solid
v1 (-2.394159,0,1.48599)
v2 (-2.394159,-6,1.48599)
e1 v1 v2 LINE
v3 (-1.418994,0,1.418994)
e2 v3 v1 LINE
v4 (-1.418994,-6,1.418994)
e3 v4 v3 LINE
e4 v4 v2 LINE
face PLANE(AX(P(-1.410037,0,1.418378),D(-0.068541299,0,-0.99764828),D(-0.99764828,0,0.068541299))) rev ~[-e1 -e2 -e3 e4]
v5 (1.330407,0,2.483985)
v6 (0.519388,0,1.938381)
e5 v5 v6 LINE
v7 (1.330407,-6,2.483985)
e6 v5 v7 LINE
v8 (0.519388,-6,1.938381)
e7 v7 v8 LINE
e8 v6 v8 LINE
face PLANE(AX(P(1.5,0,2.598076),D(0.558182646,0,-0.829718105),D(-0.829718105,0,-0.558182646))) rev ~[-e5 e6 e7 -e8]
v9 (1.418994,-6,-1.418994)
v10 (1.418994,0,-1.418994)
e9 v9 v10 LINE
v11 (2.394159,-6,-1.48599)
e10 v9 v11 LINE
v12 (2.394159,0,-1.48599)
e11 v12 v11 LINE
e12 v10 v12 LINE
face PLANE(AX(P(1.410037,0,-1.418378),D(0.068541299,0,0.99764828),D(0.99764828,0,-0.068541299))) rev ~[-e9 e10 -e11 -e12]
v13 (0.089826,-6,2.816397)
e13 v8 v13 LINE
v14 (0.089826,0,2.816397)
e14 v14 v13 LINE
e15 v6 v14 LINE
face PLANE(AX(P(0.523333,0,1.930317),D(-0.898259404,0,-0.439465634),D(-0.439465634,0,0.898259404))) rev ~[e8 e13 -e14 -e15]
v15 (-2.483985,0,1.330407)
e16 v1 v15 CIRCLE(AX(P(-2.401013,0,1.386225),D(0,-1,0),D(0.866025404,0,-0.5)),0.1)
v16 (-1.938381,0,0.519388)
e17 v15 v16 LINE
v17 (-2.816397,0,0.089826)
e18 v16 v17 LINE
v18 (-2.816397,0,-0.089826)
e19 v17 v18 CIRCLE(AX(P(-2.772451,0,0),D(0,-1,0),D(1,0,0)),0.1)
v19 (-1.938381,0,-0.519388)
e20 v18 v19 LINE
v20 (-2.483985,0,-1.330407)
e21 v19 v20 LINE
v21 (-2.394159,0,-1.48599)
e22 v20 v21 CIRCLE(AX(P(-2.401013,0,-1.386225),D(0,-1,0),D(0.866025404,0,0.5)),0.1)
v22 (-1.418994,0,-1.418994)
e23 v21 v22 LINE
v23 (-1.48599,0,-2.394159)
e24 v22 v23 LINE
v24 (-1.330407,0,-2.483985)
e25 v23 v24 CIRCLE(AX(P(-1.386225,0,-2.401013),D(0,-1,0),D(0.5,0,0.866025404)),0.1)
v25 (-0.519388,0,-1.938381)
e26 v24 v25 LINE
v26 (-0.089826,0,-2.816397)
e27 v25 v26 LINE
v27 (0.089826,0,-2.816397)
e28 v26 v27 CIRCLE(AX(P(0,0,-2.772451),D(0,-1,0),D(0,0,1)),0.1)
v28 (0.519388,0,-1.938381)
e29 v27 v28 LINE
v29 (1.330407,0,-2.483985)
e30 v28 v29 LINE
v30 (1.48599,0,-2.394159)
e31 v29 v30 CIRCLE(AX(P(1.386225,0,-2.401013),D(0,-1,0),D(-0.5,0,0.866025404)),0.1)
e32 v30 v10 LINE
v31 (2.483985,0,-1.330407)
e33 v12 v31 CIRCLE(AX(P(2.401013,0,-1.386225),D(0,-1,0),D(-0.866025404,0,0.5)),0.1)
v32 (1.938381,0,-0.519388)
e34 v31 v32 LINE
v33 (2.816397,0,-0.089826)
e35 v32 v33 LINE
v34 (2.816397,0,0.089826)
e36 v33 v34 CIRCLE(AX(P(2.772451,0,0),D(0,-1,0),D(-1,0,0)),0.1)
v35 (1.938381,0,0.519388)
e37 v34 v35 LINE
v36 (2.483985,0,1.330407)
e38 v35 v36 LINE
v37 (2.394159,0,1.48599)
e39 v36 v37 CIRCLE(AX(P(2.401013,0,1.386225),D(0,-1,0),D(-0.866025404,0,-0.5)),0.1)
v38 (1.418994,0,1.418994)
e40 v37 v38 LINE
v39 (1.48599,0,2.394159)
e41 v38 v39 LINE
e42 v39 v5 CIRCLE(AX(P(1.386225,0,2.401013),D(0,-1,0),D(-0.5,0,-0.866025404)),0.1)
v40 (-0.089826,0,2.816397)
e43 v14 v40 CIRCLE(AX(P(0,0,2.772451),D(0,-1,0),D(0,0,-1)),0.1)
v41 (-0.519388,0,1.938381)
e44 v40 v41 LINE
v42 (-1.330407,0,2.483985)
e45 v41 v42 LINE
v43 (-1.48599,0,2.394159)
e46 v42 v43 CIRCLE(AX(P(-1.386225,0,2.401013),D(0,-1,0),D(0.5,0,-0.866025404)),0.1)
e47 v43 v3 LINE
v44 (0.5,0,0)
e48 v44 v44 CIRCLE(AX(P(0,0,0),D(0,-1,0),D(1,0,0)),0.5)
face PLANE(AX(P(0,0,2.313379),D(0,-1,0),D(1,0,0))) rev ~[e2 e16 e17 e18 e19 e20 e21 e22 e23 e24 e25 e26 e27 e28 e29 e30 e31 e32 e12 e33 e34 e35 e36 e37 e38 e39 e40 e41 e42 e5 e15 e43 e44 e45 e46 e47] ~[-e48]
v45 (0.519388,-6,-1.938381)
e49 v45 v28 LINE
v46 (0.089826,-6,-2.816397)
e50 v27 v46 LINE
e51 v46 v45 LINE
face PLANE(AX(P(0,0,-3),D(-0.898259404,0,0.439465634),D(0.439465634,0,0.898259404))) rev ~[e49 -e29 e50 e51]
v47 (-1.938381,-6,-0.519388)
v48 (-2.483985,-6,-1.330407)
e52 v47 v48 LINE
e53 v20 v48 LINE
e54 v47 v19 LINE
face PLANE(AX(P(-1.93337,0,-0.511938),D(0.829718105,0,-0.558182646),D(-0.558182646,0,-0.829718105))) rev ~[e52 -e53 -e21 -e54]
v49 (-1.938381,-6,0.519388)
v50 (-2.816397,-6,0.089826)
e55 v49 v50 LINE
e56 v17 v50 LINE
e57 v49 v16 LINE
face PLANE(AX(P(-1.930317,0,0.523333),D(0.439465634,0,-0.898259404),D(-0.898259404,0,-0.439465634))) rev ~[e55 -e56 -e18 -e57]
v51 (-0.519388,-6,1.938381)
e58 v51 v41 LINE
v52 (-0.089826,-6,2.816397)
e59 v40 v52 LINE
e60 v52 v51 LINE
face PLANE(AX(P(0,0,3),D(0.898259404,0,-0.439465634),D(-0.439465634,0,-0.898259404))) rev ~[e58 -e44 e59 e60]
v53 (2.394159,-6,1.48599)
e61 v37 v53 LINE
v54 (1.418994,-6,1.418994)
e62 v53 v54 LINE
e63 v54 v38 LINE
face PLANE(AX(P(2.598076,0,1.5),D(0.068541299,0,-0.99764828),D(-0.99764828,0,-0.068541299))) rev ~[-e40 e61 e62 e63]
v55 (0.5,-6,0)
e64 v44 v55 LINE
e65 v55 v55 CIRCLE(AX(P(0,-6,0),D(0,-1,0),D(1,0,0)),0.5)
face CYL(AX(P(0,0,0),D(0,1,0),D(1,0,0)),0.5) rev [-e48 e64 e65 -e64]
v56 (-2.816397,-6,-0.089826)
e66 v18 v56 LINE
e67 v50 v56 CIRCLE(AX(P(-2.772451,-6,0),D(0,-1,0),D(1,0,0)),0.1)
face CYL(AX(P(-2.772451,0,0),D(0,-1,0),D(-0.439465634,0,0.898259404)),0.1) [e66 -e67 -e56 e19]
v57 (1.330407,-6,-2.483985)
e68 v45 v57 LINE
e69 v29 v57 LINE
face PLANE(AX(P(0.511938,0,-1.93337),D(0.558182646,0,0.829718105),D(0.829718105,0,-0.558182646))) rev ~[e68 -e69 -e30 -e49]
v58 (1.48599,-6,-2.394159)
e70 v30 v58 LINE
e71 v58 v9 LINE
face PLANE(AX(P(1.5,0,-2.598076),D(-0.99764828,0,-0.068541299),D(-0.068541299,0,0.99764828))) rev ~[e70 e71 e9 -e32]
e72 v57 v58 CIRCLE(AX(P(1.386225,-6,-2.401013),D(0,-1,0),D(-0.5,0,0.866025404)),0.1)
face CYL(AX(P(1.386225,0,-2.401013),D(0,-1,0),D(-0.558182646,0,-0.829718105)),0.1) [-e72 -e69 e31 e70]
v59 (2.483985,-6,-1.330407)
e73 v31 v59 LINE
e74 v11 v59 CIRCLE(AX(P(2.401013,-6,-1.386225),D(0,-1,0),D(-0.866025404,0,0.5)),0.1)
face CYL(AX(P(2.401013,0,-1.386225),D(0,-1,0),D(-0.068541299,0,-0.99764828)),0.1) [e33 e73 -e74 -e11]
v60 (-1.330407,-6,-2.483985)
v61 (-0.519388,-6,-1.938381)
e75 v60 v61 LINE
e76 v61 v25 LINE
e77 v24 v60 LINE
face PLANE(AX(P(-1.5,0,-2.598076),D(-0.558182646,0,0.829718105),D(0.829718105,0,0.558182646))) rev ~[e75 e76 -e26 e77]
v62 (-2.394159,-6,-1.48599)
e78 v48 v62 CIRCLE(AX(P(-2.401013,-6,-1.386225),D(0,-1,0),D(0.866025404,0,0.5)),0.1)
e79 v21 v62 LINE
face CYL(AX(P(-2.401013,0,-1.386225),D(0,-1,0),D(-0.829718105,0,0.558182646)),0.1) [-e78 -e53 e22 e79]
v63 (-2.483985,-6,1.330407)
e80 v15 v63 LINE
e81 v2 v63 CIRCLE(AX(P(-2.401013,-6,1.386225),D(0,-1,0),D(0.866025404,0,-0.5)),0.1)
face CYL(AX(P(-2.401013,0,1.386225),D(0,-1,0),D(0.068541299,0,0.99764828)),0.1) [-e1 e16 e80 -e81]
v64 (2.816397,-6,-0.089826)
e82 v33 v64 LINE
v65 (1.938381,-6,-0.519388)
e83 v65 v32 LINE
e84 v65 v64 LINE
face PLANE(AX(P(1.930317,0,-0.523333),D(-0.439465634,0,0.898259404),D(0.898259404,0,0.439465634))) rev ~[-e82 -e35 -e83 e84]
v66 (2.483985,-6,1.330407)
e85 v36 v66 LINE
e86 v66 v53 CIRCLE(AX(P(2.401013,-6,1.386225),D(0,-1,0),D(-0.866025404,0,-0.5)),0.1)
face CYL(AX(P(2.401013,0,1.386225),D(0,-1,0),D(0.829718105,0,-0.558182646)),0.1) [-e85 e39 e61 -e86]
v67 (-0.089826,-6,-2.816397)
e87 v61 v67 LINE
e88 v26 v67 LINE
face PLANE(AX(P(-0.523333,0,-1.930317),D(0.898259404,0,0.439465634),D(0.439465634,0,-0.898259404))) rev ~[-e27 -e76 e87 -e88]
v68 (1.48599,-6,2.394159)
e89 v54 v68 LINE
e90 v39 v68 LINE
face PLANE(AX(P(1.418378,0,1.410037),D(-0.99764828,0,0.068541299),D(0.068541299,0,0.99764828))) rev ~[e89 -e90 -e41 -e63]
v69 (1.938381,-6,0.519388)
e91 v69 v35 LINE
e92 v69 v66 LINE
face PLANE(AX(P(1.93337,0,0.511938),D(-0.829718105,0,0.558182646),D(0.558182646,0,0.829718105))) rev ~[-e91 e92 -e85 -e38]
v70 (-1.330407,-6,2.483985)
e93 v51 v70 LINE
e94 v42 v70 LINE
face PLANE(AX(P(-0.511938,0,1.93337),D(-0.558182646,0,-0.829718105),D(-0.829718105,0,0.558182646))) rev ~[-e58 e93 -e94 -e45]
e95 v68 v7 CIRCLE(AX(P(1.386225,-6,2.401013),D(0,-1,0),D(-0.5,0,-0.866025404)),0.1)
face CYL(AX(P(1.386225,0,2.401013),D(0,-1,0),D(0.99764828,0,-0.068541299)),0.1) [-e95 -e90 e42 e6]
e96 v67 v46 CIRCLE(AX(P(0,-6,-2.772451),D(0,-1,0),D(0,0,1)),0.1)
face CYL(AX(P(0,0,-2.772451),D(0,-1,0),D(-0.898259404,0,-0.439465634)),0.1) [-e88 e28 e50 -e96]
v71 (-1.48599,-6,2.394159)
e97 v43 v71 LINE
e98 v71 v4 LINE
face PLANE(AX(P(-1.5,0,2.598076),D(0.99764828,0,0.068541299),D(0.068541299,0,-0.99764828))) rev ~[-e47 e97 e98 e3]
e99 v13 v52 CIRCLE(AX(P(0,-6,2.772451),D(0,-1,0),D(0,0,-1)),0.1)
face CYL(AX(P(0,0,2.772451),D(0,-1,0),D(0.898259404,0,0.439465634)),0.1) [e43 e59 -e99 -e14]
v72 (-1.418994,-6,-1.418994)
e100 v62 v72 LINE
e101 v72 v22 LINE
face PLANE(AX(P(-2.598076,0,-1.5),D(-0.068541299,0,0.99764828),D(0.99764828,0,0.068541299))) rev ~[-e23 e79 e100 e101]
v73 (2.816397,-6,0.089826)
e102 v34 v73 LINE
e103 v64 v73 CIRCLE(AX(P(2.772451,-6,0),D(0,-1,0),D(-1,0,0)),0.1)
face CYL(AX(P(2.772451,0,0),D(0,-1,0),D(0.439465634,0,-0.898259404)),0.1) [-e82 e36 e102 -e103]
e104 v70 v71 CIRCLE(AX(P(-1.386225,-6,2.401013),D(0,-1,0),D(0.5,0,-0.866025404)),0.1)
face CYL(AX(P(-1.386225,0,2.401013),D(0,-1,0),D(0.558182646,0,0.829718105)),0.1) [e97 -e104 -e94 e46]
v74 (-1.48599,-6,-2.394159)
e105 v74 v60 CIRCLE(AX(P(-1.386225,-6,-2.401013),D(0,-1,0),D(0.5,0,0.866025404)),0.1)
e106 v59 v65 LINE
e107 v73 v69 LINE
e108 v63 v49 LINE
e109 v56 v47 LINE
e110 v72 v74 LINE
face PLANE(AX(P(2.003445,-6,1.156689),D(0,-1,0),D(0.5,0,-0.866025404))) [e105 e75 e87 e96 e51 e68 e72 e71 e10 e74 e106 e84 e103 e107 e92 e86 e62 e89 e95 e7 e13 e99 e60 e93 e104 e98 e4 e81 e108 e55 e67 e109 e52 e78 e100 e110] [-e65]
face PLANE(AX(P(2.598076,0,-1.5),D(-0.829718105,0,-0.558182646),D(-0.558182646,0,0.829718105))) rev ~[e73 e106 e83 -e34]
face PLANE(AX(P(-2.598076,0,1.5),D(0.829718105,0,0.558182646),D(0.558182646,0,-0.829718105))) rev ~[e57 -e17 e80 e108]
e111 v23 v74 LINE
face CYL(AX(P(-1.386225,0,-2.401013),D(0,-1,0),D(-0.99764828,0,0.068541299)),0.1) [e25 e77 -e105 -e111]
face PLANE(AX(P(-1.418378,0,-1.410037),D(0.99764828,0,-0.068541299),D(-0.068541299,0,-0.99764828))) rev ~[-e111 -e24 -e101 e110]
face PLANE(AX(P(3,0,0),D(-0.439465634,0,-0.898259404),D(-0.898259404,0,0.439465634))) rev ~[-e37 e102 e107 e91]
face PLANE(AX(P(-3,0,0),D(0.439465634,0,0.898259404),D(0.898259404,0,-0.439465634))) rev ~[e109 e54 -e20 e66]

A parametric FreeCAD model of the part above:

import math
import FreeCAD as App
import Part
import Sketcher
from FreeCAD import Vector


def edges_at(feature, points):
    """Names of the edges that pass closest to the given points."""
    edges = feature.Shape.Edges
    near = lambda p: min(range(len(edges)), key=lambda i: edges[i].distToShape(Part.Vertex(*p))[0])
    return sorted({f"Edge{near(p) + 1}" for p in points})

doc = App.newDocument("Part")
body = doc.addObject("PartDesign::Body", "Body")

# Sketch on XZ plane
sketch1 = body.newObject("Sketcher::SketchObject", "Sketch")
sketch1.AttachmentSupport = (doc.getObject("XZ_Plane"), [""])
sketch1.MapMode = "FlatFace"
sketch1.addGeometry([
    Part.ArcOfCircle(Part.Circle(Vector(0, 0, 0), Vector(0, 0, 1), 2), math.radians(105), math.radians(360)),
    Part.ArcOfCircle(Part.Circle(Vector(0, 0, 0), Vector(0, 0, 1), 2), math.radians(0), math.radians(75)),
    Part.ArcOfCircle(Part.Circle(Vector(0, 0, 0), Vector(0, 0, 1), 2), math.radians(75), math.radians(105)),
    Part.Circle(Vector(0, 0, 0), Vector(0, 0, 1), 0.5),
], False)
sketch1.addConstraint([
    Sketcher.Constraint("Tangent", 0, 2, 1, 1),
    Sketcher.Constraint("Tangent", 1, 2, 2, 1),
    Sketcher.Constraint("Tangent", 2, 2, 0, 1),
    Sketcher.Constraint("Coincident", 0, 3, -1, 1),
    Sketcher.Constraint("Coincident", 3, 3, -1, 1),
    Sketcher.Constraint("PointOnObject", 0, 2, -1),
    Sketcher.Constraint("Horizontal", 1, 2, 2, 2),
    Sketcher.Constraint("Diameter", 3, 1.0),
    Sketcher.Constraint("Radius", 0, 2.0),
    Sketcher.Constraint("DistanceX", -1, 1, 1, 2, 0.523333),
])
pad1 = body.newObject("PartDesign::Pad", "Pad")
pad1.Profile = sketch1
pad1.Length = 6
body2 = doc.addObject("PartDesign::Body", "Body001")

# Sketch on XZ plane
sketch2 = body2.newObject("Sketcher::SketchObject", "Sketch001")
sketch2.AttachmentSupport = (doc.getObject("XZ_Plane001"), [""])
sketch2.MapMode = "FlatFace"
sketch2.addGeometry([
    Part.ArcOfCircle(Part.Circle(Vector(0, 0, 0), Vector(0, 0, 1), 2), math.radians(75), math.radians(105)),
    Part.LineSegment(Vector(0.5, 1.9, 0), Vector(0, 3, 0)),
    Part.LineSegment(Vector(0, 3, 0), Vector(-0.5, 1.9, 0)),
], False)
sketch2.addConstraint([
    Sketcher.Constraint("Coincident", 0, 1, 1, 1),
    Sketcher.Constraint("Coincident", 1, 2, 2, 1),
    Sketcher.Constraint("Coincident", 2, 2, 0, 2),
    Sketcher.Constraint("Coincident", 0, 3, -1, 1),
    Sketcher.Constraint("PointOnObject", 1, 2, -2),
    Sketcher.Constraint("Horizontal", 0, 1, 2, 2),
    Sketcher.Constraint("Radius", 0, 2.0),
    Sketcher.Constraint("DistanceY", -1, 1, 1, 2, 3.0),
    Sketcher.Constraint("Distance", 1, 1.19084),
])
pad2 = body2.newObject("PartDesign::Pad", "Pad001")
pad2.Profile = sketch2
pad2.Length = 6
doc.recompute()

fillet = body2.newObject("PartDesign::Fillet", "Fillet")
fillet.Base = (pad2, edges_at(pad2, [(0, -3, 3)]))
fillet.Radius = 0.1
doc.recompute()

body3 = doc.addObject("PartDesign::Body", "Body002")
body3.BaseFeature = body2
boolean = body.newObject("PartDesign::Boolean", "Boolean")
boolean.Type = "Fuse"
boolean.addObjects([body3])
doc.recompute()

body4 = doc.addObject("PartDesign::Body", "Body003")
body4.BaseFeature = body2
body4.Placement = App.Placement(Vector(0, 0, 0), App.Rotation(Vector(0, -1, 0), 30))
boolean2 = body.newObject("PartDesign::Boolean", "Boolean001")
boolean2.Type = "Fuse"
boolean2.addObjects([body4])
doc.recompute()

body5 = doc.addObject("PartDesign::Body", "Body004")
body5.BaseFeature = body2
body5.Placement = App.Placement(Vector(0, 0, 0), App.Rotation(Vector(0, -1, 0), 60))
boolean3 = body.newObject("PartDesign::Boolean", "Boolean002")
boolean3.Type = "Fuse"
boolean3.addObjects([body5])
doc.recompute()

body6 = doc.addObject("PartDesign::Body", "Body005")
body6.BaseFeature = body2
body6.Placement = App.Placement(Vector(0, 0, 0), App.Rotation(Vector(0, -1, 0), 90))
boolean4 = body.newObject("PartDesign::Boolean", "Boolean003")
boolean4.Type = "Fuse"
boolean4.addObjects([body6])
doc.recompute()

body7 = doc.addObject("PartDesign::Body", "Body006")
body7.BaseFeature = body2
body7.Placement = App.Placement(Vector(0, 0, 0), App.Rotation(Vector(0, -1, 0), 120))
boolean5 = body.newObject("PartDesign::Boolean", "Boolean004")
boolean5.Type = "Fuse"
boolean5.addObjects([body7])
doc.recompute()

body8 = doc.addObject("PartDesign::Body", "Body007")
body8.BaseFeature = body2
body8.Placement = App.Placement(Vector(0, 0, 0), App.Rotation(Vector(0, -1, 0), 150))
boolean6 = body.newObject("PartDesign::Boolean", "Boolean005")
boolean6.Type = "Fuse"
boolean6.addObjects([body8])
doc.recompute()

body9 = doc.addObject("PartDesign::Body", "Body008")
body9.BaseFeature = body2
body9.Placement = App.Placement(Vector(0, 0, 0), App.Rotation(Vector(0, -1, 0), 180))
boolean7 = body.newObject("PartDesign::Boolean", "Boolean006")
boolean7.Type = "Fuse"
boolean7.addObjects([body9])
doc.recompute()

body10 = doc.addObject("PartDesign::Body", "Body009")
body10.BaseFeature = body2
body10.Placement = App.Placement(Vector(0, 0, 0), App.Rotation(Vector(0, -1, 0), 210))
boolean8 = body.newObject("PartDesign::Boolean", "Boolean007")
boolean8.Type = "Fuse"
boolean8.addObjects([body10])
doc.recompute()

body11 = doc.addObject("PartDesign::Body", "Body010")
body11.BaseFeature = body2
body11.Placement = App.Placement(Vector(0, 0, 0), App.Rotation(Vector(0, -1, 0), 240))
boolean9 = body.newObject("PartDesign::Boolean", "Boolean008")
boolean9.Type = "Fuse"
boolean9.addObjects([body11])
doc.recompute()

body12 = doc.addObject("PartDesign::Body", "Body011")
body12.BaseFeature = body2
body12.Placement = App.Placement(Vector(0, 0, 0), App.Rotation(Vector(0, -1, 0), 270))
boolean10 = body.newObject("PartDesign::Boolean", "Boolean009")
boolean10.Type = "Fuse"
boolean10.addObjects([body12])
doc.recompute()

body13 = doc.addObject("PartDesign::Body", "Body012")
body13.BaseFeature = body2
body13.Placement = App.Placement(Vector(0, 0, 0), App.Rotation(Vector(0, -1, 0), 300))
boolean11 = body.newObject("PartDesign::Boolean", "Boolean010")
boolean11.Type = "Fuse"
boolean11.addObjects([body13])
doc.recompute()

body2.Placement = App.Placement(Vector(0, 0, 0), App.Rotation(Vector(0, -1, 0), 330))
boolean12 = body.newObject("PartDesign::Boolean", "Boolean011")
boolean12.Type = "Fuse"
boolean12.addObjects([body2])

doc.recompute()
